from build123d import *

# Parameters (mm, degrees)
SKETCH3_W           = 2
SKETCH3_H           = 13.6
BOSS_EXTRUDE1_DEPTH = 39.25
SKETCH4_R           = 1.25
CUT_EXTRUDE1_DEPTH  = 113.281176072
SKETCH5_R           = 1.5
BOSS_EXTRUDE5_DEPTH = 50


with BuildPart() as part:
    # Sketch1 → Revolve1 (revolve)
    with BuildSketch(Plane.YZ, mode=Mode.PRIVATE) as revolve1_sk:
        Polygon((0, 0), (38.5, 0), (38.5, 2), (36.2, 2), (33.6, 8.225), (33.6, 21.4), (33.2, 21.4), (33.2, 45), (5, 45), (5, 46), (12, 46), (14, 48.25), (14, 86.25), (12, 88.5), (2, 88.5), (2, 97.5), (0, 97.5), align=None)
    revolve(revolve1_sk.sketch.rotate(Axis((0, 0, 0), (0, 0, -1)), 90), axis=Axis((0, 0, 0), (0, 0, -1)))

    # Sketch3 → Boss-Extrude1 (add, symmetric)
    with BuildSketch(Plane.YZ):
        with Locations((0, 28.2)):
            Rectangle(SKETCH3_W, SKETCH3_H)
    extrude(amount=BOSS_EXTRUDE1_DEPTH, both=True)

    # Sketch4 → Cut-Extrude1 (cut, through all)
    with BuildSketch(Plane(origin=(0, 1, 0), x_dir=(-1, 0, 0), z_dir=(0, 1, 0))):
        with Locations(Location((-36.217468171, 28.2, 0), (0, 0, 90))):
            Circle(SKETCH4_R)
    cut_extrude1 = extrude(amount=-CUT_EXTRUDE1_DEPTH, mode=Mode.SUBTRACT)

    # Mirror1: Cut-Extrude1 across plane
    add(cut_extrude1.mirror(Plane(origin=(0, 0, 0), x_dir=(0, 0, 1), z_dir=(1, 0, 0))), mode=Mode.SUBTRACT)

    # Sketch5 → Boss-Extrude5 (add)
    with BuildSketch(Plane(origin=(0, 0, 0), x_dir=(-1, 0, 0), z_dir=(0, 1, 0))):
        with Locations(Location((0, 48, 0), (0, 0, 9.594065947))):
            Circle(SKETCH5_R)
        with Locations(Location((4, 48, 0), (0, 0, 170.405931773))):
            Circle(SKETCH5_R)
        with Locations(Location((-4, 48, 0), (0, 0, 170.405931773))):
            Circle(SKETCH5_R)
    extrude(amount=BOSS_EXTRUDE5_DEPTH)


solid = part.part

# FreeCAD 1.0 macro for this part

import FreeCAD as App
import Part
import Sketcher

V = App.Vector
Q = App.Units.Quantity


def add_polygon(sketch, points):
    """Adds a closed chain of lines whose ends are joined by coincident constraints."""
    first, n = sketch.GeometryCount, len(points)
    for a, b in zip(points, points[1:] + points[:1]):
        sketch.addGeometry(Part.LineSegment(App.Vector(*a, 0), App.Vector(*b, 0)), False)
    for i in range(n):
        sketch.addConstraint(Sketcher.Constraint("Coincident", first + i, 2, first + (i + 1) % n, 1))

doc = App.newDocument("Part")
params = doc.addObject("Spreadsheet::Sheet", "Params")
for row, (alias, value) in enumerate([
    ("sketch1_width", "7 mm"),
    ("sketch1_width2", "10 mm"),
    ("sketch1_width3", "2 mm"),
    ("sketch1_height", "1 mm"),
    ("sketch1_height2", "38 mm"),
    ("revolution_angle", "360 deg"),
    ("sketch2_width", "2 mm"),
    ("sketch2_height", "13.6 mm"),
    ("pad1_length", "78.5 mm"),
    ("sketch3_diameter", "2.5 mm"),
    ("sketch4_diameter", "3 mm"),
    ("pad2_length", "50 mm"),
], start=1):
    params.set(f"A{row}", alias)
    params.set(f"B{row}", "=" + value)
    params.setAlias(f"B{row}", alias)

body = doc.addObject("PartDesign::Body", "Body")

sketch1 = body.newObject("Sketcher::SketchObject", "Sketch")
sketch1.AttachmentSupport = (doc.getObject("YZ_Plane"), [""])
sketch1.MapMode = "FlatFace"
add_polygon(sketch1, [(0, 0), (38.5, 0), (38.5, 2), (36.2, 2), (33.6, 8.22), (33.6, 21.4), (33.2, 21.4), (33.2, 45), (5, 45), (5, 46), (12, 46), (14, 48.25), (14, 86.25), (12, 88.5), (2, 88.5), (2, 97.5), (0, 97.5)])
sketch1.addConstraint([
    Sketcher.Constraint("Horizontal", 0),
    Sketcher.Constraint("Vertical", 1),
    Sketcher.Constraint("Horizontal", 2),
    Sketcher.Constraint("Vertical", 4),
    Sketcher.Constraint("Horizontal", 5),
    Sketcher.Constraint("Vertical", 6),
    Sketcher.Constraint("Horizontal", 7),
    Sketcher.Constraint("Vertical", 8),
    Sketcher.Constraint("Horizontal", 9),
    Sketcher.Constraint("Vertical", 11),
    Sketcher.Constraint("Horizontal", 13),
    Sketcher.Constraint("Vertical", 14),
    Sketcher.Constraint("Horizontal", 15),
    Sketcher.Constraint("Vertical", 16),
    Sketcher.Constraint("Coincident", 16, 2, -1, 1),
    Sketcher.Constraint("Vertical", 9, 2, 12, 2),
    Sketcher.Constraint("Equal", 15, 1),
    Sketcher.Constraint("Equal", 10, 12),
    Sketcher.Constraint("DistanceX", 9, 1, 9, 2, Q("7 mm")),
    Sketcher.Constraint("DistanceX", 13, 2, 13, 1, Q("10 mm")),
    Sketcher.Constraint("DistanceX", 15, 2, 15, 1, Q("2 mm")),
    Sketcher.Constraint("DistanceY", 8, 1, 8, 2, Q("1 mm")),
    Sketcher.Constraint("DistanceY", 11, 1, 11, 2, Q("38 mm")),
    Sketcher.Constraint("DistanceY", 14, 1, 14, 2, Q("9 mm")),
    Sketcher.Constraint("DistanceX", 0, 1, 0, 2, Q("38.5 mm")),
    Sketcher.Constraint("DistanceX", 2, 2, 2, 1, Q("2.3 mm")),
    Sketcher.Constraint("DistanceX", 5, 2, 5, 1, Q("0.4 mm")),
    Sketcher.Constraint("DistanceX", 7, 2, 7, 1, Q("28.2 mm")),
    Sketcher.Constraint("DistanceY", 6, 1, 6, 2, Q("23.6 mm")),
    Sketcher.Constraint("DistanceY", 16, 2, 16, 1, Q("97.5 mm")),
    Sketcher.Constraint("DistanceY", -1, 1, 6, 2, Q("45 mm")),
    Sketcher.Constraint("DistanceX", -1, 1, 10, 2, Q("14 mm")),
    Sketcher.Constraint("DistanceY", 4, 1, 4, 2, Q("13.175 mm")),
])
sketch1.setExpression("Constraints[35]", "Params.sketch1_width")
sketch1.setExpression("Constraints[36]", "Params.sketch1_width2")
sketch1.setExpression("Constraints[37]", "Params.sketch1_width3")
sketch1.setExpression("Constraints[38]", "Params.sketch1_height")
sketch1.setExpression("Constraints[39]", "Params.sketch1_height2")
revolution = body.newObject("PartDesign::Revolution", "Revolution")
revolution.Profile = sketch1
revolution.ReferenceAxis = (sketch1, ["V_Axis"])
revolution.setExpression("Angle", "Params.revolution_angle")

sketch2 = body.newObject("Sketcher::SketchObject", "Sketch001")
sketch2.AttachmentSupport = (doc.getObject("YZ_Plane"), [""])
sketch2.MapMode = "FlatFace"
add_polygon(sketch2, [(-1, 35), (-1, 21.4), (1, 21.4), (1, 35)])
sketch2.addConstraint([
    Sketcher.Constraint("Vertical", 0),
    Sketcher.Constraint("Horizontal", 1),
    Sketcher.Constraint("Vertical", 2),
    Sketcher.Constraint("Horizontal", 3),
    Sketcher.Constraint("DistanceX", 1, 1, 1, 2, Q("2 mm")),
    Sketcher.Constraint("DistanceY", 0, 2, 0, 1, Q("13.6 mm")),
    Sketcher.Constraint("DistanceX", 0, 2, -1, 1, Q("1 mm")),
    Sketcher.Constraint("DistanceY", -1, 1, 2, 2, Q("35 mm")),
])
sketch2.setExpression("Constraints[8]", "Params.sketch2_width")
sketch2.setExpression("Constraints[9]", "Params.sketch2_height")
pad1 = body.newObject("PartDesign::Pad", "Pad")
pad1.Profile = sketch2
pad1.setExpression("Length", "Params.pad1_length")
pad1.Midplane = True

sketch3 = body.newObject("Sketcher::SketchObject", "Sketch002")
sketch3.AttachmentSupport = (doc.getObject("XZ_Plane"), [""])
sketch3.MapMode = "FlatFace"
sketch3.AttachmentOffset = App.Placement(V(0, 0, -1), App.Rotation())
sketch3.addGeometry(Part.Circle(V(36.2, 28.2, 0), V(0, 0, 1), 1.2), False)
sketch3.addConstraint([
    Sketcher.Constraint("Diameter", 0, Q("2.5 mm")),
    Sketcher.Constraint("DistanceY", -1, 1, 0, 3, Q("28.2 mm")),
    Sketcher.Constraint("DistanceX", -1, 1, 0, 3, Q("36.217468 mm")),
])
sketch3.setExpression("Constraints[0]", "Params.sketch3_diameter")
pocket1 = body.newObject("PartDesign::Pocket", "Pocket")
pocket1.Profile = sketch3
pocket1.Type = "ThroughAll"
pocket1.Reversed = True
doc.recompute()

mirrored = body.newObject("PartDesign::Mirrored", "Mirrored")
mirrored.Originals = [pocket1]
mirrored.MirrorPlane = (doc.getObject("YZ_Plane"), [""])
body.Tip = mirrored

sketch4 = body.newObject("Sketcher::SketchObject", "Sketch003")
sketch4.AttachmentSupport = (doc.getObject("XZ_Plane"), [""])
sketch4.MapMode = "FlatFace"
sketch4.addGeometry([
    Part.Circle(V(0, 48, 0), V(0, 0, 1), 1.5),
    Part.Circle(V(-4, 48, 0), V(0, 0, 1), 1.5),
    Part.Circle(V(4, 48, 0), V(0, 0, 1), 1.5),
], False)
sketch4.addConstraint([
    Sketcher.Constraint("Equal", 0, 1),
    Sketcher.Constraint("Equal", 1, 2),
    Sketcher.Constraint("Symmetric", 1, 3, 2, 3, -2),
    Sketcher.Constraint("PointOnObject", 0, 3, -2),
    Sketcher.Constraint("Horizontal", 0, 3, 1, 3),
    Sketcher.Constraint("Diameter", 0, Q("3 mm")),
    Sketcher.Constraint("DistanceY", -1, 1, 0, 3, Q("48 mm")),
    Sketcher.Constraint("DistanceX", 1, 3, -1, 1, Q("4 mm")),
])
sketch4.setExpression("Constraints[5]", "Params.sketch4_diameter")
pad2 = body.newObject("PartDesign::Pad", "Pad001")
pad2.Profile = sketch4
pad2.setExpression("Length", "Params.pad2_length")
pad2.Reversed = True

doc.recompute()
